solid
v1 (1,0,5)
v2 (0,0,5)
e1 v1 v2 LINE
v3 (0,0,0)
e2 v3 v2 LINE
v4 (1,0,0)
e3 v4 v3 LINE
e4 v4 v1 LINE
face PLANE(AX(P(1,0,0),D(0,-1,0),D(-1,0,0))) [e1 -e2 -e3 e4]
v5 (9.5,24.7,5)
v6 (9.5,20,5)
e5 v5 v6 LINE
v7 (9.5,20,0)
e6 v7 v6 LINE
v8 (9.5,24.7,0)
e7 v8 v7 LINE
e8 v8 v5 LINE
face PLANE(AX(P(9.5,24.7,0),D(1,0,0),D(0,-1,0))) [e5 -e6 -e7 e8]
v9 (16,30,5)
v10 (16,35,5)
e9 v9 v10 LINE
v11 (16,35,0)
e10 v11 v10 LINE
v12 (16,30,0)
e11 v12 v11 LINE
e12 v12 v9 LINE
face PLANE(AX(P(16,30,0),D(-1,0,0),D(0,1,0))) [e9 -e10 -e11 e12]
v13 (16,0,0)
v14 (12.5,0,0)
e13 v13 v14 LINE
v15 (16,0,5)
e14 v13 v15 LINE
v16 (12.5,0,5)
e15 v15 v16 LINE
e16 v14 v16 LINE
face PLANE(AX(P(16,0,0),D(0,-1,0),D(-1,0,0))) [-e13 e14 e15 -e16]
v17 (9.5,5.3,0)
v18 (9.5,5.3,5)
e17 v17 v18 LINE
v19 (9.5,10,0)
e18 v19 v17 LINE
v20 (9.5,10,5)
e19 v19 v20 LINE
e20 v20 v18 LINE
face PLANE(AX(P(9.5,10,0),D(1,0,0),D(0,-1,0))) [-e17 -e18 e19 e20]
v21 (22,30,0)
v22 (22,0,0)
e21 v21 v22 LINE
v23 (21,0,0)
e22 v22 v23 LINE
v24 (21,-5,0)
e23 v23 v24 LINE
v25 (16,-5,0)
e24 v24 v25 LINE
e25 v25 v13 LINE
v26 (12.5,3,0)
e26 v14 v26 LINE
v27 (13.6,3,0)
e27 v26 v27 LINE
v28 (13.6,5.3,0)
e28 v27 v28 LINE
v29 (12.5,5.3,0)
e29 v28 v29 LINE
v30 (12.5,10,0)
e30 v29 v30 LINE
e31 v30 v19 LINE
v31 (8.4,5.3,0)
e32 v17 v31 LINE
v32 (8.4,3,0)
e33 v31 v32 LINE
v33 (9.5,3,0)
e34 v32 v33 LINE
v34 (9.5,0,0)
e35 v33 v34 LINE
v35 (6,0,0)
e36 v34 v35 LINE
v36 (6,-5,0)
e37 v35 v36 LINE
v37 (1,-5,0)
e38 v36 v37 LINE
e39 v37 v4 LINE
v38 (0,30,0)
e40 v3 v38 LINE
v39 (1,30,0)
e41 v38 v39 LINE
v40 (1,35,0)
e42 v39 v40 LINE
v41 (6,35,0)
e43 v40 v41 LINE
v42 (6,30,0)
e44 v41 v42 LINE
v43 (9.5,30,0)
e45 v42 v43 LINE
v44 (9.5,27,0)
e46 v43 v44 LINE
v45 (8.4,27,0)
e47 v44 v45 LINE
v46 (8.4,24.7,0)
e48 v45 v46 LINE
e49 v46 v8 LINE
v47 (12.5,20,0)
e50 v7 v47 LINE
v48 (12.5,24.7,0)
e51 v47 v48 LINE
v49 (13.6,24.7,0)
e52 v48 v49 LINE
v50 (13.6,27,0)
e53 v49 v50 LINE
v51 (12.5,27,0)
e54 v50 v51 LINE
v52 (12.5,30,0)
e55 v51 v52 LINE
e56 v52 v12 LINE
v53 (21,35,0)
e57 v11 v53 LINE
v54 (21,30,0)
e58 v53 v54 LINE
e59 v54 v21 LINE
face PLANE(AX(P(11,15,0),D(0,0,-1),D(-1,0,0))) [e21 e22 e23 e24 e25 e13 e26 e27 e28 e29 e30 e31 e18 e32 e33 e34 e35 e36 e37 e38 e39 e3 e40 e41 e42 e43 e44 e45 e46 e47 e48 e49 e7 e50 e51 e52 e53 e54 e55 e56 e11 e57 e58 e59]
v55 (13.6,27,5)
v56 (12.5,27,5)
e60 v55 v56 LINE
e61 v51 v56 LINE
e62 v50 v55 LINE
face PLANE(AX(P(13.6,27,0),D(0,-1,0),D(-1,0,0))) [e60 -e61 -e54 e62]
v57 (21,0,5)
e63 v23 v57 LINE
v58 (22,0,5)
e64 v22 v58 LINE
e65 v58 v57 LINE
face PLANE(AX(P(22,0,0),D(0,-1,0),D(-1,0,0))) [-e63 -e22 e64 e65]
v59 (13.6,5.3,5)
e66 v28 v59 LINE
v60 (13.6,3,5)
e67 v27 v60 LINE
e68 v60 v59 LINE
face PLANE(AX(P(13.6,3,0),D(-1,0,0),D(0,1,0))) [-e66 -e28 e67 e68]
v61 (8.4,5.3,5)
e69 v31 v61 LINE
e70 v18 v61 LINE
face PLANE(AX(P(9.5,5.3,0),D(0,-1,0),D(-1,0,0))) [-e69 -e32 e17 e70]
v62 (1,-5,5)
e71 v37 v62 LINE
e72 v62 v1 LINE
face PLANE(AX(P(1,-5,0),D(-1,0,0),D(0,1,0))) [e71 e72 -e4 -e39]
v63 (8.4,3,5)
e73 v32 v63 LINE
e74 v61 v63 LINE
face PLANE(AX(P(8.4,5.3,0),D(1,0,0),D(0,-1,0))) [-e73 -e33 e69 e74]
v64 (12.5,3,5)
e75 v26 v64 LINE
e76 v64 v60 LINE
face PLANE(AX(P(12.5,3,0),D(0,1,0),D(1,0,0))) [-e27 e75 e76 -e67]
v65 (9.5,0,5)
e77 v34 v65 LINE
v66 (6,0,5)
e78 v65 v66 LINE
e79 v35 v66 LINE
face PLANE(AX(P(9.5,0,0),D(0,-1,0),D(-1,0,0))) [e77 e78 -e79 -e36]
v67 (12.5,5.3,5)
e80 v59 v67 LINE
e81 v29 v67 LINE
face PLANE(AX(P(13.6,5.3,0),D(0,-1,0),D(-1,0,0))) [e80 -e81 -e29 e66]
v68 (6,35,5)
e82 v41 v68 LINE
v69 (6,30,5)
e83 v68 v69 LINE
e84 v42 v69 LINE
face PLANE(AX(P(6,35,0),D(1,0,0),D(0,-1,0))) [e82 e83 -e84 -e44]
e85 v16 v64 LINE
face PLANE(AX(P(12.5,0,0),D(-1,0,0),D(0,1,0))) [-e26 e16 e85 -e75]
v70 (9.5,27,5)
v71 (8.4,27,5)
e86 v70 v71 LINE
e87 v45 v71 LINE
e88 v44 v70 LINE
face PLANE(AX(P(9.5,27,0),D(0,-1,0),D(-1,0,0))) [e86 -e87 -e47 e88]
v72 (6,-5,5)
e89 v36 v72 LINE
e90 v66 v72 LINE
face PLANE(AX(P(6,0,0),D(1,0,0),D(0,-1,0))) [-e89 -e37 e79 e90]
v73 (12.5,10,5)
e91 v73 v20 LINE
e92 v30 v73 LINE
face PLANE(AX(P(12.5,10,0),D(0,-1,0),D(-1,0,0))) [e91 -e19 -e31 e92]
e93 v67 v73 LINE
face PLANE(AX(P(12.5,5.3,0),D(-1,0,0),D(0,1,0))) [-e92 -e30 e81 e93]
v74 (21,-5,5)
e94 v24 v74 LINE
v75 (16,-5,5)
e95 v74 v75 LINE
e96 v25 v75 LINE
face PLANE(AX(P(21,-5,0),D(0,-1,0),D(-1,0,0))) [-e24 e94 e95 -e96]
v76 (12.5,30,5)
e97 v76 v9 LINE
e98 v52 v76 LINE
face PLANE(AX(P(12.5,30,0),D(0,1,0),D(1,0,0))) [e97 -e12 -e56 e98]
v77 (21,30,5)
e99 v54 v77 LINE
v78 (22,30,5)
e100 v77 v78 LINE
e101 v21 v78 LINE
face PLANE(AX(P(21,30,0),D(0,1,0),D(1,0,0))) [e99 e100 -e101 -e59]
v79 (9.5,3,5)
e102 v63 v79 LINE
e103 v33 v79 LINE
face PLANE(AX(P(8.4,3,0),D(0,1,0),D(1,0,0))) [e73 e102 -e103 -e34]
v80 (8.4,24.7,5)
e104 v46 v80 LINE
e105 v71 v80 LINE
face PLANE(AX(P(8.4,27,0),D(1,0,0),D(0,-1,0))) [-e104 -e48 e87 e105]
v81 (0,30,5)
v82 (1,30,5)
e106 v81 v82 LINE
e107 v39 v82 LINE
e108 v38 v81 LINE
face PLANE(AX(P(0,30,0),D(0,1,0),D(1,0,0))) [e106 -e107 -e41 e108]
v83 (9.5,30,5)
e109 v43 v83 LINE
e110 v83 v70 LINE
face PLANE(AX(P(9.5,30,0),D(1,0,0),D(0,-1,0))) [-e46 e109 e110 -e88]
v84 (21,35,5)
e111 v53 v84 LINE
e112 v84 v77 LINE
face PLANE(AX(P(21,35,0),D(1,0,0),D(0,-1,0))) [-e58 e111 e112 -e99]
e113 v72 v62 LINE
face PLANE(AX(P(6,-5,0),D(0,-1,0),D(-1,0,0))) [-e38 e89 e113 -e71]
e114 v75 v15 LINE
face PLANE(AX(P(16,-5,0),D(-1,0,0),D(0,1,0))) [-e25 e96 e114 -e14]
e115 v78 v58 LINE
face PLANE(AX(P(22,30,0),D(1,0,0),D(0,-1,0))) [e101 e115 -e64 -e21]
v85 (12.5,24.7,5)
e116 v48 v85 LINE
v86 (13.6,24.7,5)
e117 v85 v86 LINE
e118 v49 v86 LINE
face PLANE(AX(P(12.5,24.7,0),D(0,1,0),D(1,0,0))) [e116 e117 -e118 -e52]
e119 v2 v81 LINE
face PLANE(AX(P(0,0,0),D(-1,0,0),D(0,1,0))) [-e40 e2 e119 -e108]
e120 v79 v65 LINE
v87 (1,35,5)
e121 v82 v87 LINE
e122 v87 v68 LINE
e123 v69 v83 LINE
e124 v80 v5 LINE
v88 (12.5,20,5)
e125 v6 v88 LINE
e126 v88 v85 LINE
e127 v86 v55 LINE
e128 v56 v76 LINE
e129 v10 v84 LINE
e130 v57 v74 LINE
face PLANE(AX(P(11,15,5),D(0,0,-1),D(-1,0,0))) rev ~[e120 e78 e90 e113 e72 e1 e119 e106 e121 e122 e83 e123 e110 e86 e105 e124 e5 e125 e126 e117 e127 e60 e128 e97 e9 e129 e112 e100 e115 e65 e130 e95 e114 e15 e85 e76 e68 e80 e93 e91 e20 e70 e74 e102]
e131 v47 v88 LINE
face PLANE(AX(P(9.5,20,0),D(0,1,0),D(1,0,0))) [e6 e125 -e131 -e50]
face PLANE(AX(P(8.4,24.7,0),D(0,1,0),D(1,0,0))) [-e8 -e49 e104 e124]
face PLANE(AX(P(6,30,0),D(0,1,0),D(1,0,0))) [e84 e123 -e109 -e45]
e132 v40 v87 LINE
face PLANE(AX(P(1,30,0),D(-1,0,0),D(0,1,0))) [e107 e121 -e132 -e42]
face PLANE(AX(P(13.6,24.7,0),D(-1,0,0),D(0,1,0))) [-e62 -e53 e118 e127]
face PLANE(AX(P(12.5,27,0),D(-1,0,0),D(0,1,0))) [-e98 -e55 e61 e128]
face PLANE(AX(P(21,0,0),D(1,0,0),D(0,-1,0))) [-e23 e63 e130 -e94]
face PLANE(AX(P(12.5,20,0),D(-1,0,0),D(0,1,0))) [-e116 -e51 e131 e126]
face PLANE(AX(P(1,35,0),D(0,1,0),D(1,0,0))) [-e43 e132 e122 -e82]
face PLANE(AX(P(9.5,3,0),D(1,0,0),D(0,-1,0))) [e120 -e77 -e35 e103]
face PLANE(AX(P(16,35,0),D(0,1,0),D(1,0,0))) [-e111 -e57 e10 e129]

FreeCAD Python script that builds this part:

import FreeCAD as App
import Part
import Sketcher

doc = App.newDocument("Part")
body = doc.addObject("PartDesign::Body", "Body")

# Sketch on XY plane
sketch1 = doc.addObject("Sketcher::SketchObject", "Sketch")
body.addObject(sketch1)
sketch1.AttachmentSupport = (doc.XY_Plane, [""])
sketch1.MapMode = "FlatFace"
sketch1.addGeometry([
    Part.LineSegment(App.Vector(1, 30, 0), App.Vector(0, 30, 0)),  # 0
    Part.LineSegment(App.Vector(0, 30, 0), App.Vector(0, 0, 0)),  # 1
    Part.LineSegment(App.Vector(0, 0, 0), App.Vector(1, 0, 0)),  # 2
    Part.LineSegment(App.Vector(1, 0, 0), App.Vector(1, -5, 0)),  # 3
    Part.LineSegment(App.Vector(1, -5, 0), App.Vector(6, -5, 0)),  # 4
    Part.LineSegment(App.Vector(6, -5, 0), App.Vector(6, 0, 0)),  # 5
    Part.LineSegment(App.Vector(6, 0, 0), App.Vector(9.5, 0, 0)),  # 6
    Part.LineSegment(App.Vector(9.5, 0, 0), App.Vector(9.5, 3, 0)),  # 7
    Part.LineSegment(App.Vector(9.5, 3, 0), App.Vector(8.4, 3, 0)),  # 8
    Part.LineSegment(App.Vector(8.4, 3, 0), App.Vector(8.4, 5.3, 0)),  # 9
    Part.LineSegment(App.Vector(8.4, 5.3, 0), App.Vector(9.5, 5.3, 0)),  # 10
    Part.LineSegment(App.Vector(9.5, 5.3, 0), App.Vector(9.5, 10, 0)),  # 11
    Part.LineSegment(App.Vector(9.5, 10, 0), App.Vector(12.5, 10, 0)),  # 12
    Part.LineSegment(App.Vector(12.5, 10, 0), App.Vector(12.5, 5.3, 0)),  # 13
    Part.LineSegment(App.Vector(12.5, 5.3, 0), App.Vector(13.6, 5.3, 0)),  # 14
    Part.LineSegment(App.Vector(13.6, 5.3, 0), App.Vector(13.6, 3, 0)),  # 15
    Part.LineSegment(App.Vector(13.6, 3, 0), App.Vector(12.5, 3, 0)),  # 16
    Part.LineSegment(App.Vector(12.5, 3, 0), App.Vector(12.5, 0, 0)),  # 17
    Part.LineSegment(App.Vector(12.5, 0, 0), App.Vector(16, 0, 0)),  # 18
    Part.LineSegment(App.Vector(16, 0, 0), App.Vector(16, -5, 0)),  # 19
    Part.LineSegment(App.Vector(16, -5, 0), App.Vector(21, -5, 0)),  # 20
    Part.LineSegment(App.Vector(21, -5, 0), App.Vector(21, 0, 0)),  # 21
    Part.LineSegment(App.Vector(21, 0, 0), App.Vector(22, 0, 0)),  # 22
    Part.LineSegment(App.Vector(22, 0, 0), App.Vector(22, 30, 0)),  # 23
    Part.LineSegment(App.Vector(22, 30, 0), App.Vector(21, 30, 0)),  # 24
    Part.LineSegment(App.Vector(21, 30, 0), App.Vector(21, 35, 0)),  # 25
    Part.LineSegment(App.Vector(21, 35, 0), App.Vector(16, 35, 0)),  # 26
    Part.LineSegment(App.Vector(16, 35, 0), App.Vector(16, 30, 0)),  # 27
    Part.LineSegment(App.Vector(16, 30, 0), App.Vector(12.5, 30, 0)),  # 28
    Part.LineSegment(App.Vector(12.5, 30, 0), App.Vector(12.5, 27, 0)),  # 29
    Part.LineSegment(App.Vector(12.5, 27, 0), App.Vector(13.6, 27, 0)),  # 30
    Part.LineSegment(App.Vector(13.6, 27, 0), App.Vector(13.6, 24.7, 0)),  # 31
    Part.LineSegment(App.Vector(13.6, 24.7, 0), App.Vector(12.5, 24.7, 0)),  # 32
    Part.LineSegment(App.Vector(12.5, 24.7, 0), App.Vector(12.5, 20, 0)),  # 33
    Part.LineSegment(App.Vector(12.5, 20, 0), App.Vector(9.5, 20, 0)),  # 34
    Part.LineSegment(App.Vector(9.5, 20, 0), App.Vector(9.5, 24.7, 0)),  # 35
    Part.LineSegment(App.Vector(9.5, 24.7, 0), App.Vector(8.4, 24.7, 0)),  # 36
    Part.LineSegment(App.Vector(8.4, 24.7, 0), App.Vector(8.4, 27, 0)),  # 37
    Part.LineSegment(App.Vector(8.4, 27, 0), App.Vector(9.5, 27, 0)),  # 38
    Part.LineSegment(App.Vector(9.5, 27, 0), App.Vector(9.5, 30, 0)),  # 39
    Part.LineSegment(App.Vector(9.5, 30, 0), App.Vector(6, 30, 0)),  # 40
    Part.LineSegment(App.Vector(6, 30, 0), App.Vector(6, 35, 0)),  # 41
    Part.LineSegment(App.Vector(6, 35, 0), App.Vector(1, 35, 0)),  # 42
    Part.LineSegment(App.Vector(1, 35, 0), App.Vector(1, 30, 0)),  # 43
], False)
sketch1.addConstraint([
    Sketcher.Constraint("Coincident", 0, 2, 1, 1),
    Sketcher.Constraint("Coincident", 1, 2, 2, 1),
    Sketcher.Constraint("Coincident", 2, 2, 3, 1),
    Sketcher.Constraint("Coincident", 3, 2, 4, 1),
    Sketcher.Constraint("Coincident", 4, 2, 5, 1),
    Sketcher.Constraint("Coincident", 5, 2, 6, 1),
    Sketcher.Constraint("Coincident", 6, 2, 7, 1),
    Sketcher.Constraint("Coincident", 7, 2, 8, 1),
    Sketcher.Constraint("Coincident", 8, 2, 9, 1),
    Sketcher.Constraint("Coincident", 9, 2, 10, 1),
    Sketcher.Constraint("Coincident", 10, 2, 11, 1),
    Sketcher.Constraint("Coincident", 11, 2, 12, 1),
    Sketcher.Constraint("Coincident", 12, 2, 13, 1),
    Sketcher.Constraint("Coincident", 13, 2, 14, 1),
    Sketcher.Constraint("Coincident", 14, 2, 15, 1),
    Sketcher.Constraint("Coincident", 15, 2, 16, 1),
    Sketcher.Constraint("Coincident", 16, 2, 17, 1),
    Sketcher.Constraint("Coincident", 17, 2, 18, 1),
    Sketcher.Constraint("Coincident", 18, 2, 19, 1),
    Sketcher.Constraint("Coincident", 19, 2, 20, 1),
    Sketcher.Constraint("Coincident", 20, 2, 21, 1),
    Sketcher.Constraint("Coincident", 21, 2, 22, 1),
    Sketcher.Constraint("Coincident", 22, 2, 23, 1),
    Sketcher.Constraint("Coincident", 23, 2, 24, 1),
    Sketcher.Constraint("Coincident", 24, 2, 25, 1),
    Sketcher.Constraint("Coincident", 25, 2, 26, 1),
    Sketcher.Constraint("Coincident", 26, 2, 27, 1),
    Sketcher.Constraint("Coincident", 27, 2, 28, 1),
    Sketcher.Constraint("Coincident", 28, 2, 29, 1),
    Sketcher.Constraint("Coincident", 29, 2, 30, 1),
    Sketcher.Constraint("Coincident", 30, 2, 31, 1),
    Sketcher.Constraint("Coincident", 31, 2, 32, 1),
    Sketcher.Constraint("Coincident", 32, 2, 33, 1),
    Sketcher.Constraint("Coincident", 33, 2, 34, 1),
    Sketcher.Constraint("Coincident", 34, 2, 35, 1),
    Sketcher.Constraint("Coincident", 35, 2, 36, 1),
    Sketcher.Constraint("Coincident", 36, 2, 37, 1),
    Sketcher.Constraint("Coincident", 37, 2, 38, 1),
    Sketcher.Constraint("Coincident", 38, 2, 39, 1),
    Sketcher.Constraint("Coincident", 39, 2, 40, 1),
    Sketcher.Constraint("Coincident", 40, 2, 41, 1),
    Sketcher.Constraint("Coincident", 41, 2, 42, 1),
    Sketcher.Constraint("Coincident", 42, 2, 43, 1),
    Sketcher.Constraint("Coincident", 43, 2, 0, 1),
    Sketcher.Constraint("Horizontal", 0),
    Sketcher.Constraint("Vertical", 1),
    Sketcher.Constraint("Horizontal", 2),
    Sketcher.Constraint("Vertical", 3),
    Sketcher.Constraint("Horizontal", 4),
    Sketcher.Constraint("Vertical", 5),
    Sketcher.Constraint("Horizontal", 6),
    Sketcher.Constraint("Vertical", 7),
    Sketcher.Constraint("Horizontal", 8),
    Sketcher.Constraint("Vertical", 9),
    Sketcher.Constraint("Horizontal", 10),
    Sketcher.Constraint("Vertical", 11),
    Sketcher.Constraint("Horizontal", 12),
    Sketcher.Constraint("Vertical", 13),
    Sketcher.Constraint("Horizontal", 14),
    Sketcher.Constraint("Vertical", 15),
    Sketcher.Constraint("Horizontal", 16),
    Sketcher.Constraint("Vertical", 17),
    Sketcher.Constraint("Horizontal", 18),
    Sketcher.Constraint("Vertical", 19),
    Sketcher.Constraint("Horizontal", 20),
    Sketcher.Constraint("Vertical", 21),
    Sketcher.Constraint("Horizontal", 22),
    Sketcher.Constraint("Vertical", 23),
    Sketcher.Constraint("Horizontal", 24),
    Sketcher.Constraint("Vertical", 25),
    Sketcher.Constraint("Horizontal", 26),
    Sketcher.Constraint("Vertical", 27),
    Sketcher.Constraint("Horizontal", 28),
    Sketcher.Constraint("Vertical", 29),
    Sketcher.Constraint("Horizontal", 30),
    Sketcher.Constraint("Vertical", 31),
    Sketcher.Constraint("Horizontal", 32),
    Sketcher.Constraint("Vertical", 33),
    Sketcher.Constraint("Horizontal", 34),
    Sketcher.Constraint("Vertical", 35),
    Sketcher.Constraint("Horizontal", 36),
    Sketcher.Constraint("Vertical", 37),
    Sketcher.Constraint("Horizontal", 38),
    Sketcher.Constraint("Vertical", 39),
    Sketcher.Constraint("Horizontal", 40),
    Sketcher.Constraint("Vertical", 41),
    Sketcher.Constraint("Horizontal", 42),
    Sketcher.Constraint("Vertical", 43),
    Sketcher.Constraint("Coincident", 1, 2, -1, 1),
    Sketcher.Constraint("PointOnObject", 5, 2, -1),
    Sketcher.Constraint("PointOnObject", 17, 2, -1),
    Sketcher.Constraint("PointOnObject", 21, 2, -1),
    Sketcher.Constraint("Horizontal", 10, 2, 13, 2),
    Sketcher.Constraint("Horizontal", 8, 2, 15, 2),
    Sketcher.Constraint("Horizontal", 4, 2, 19, 2),
    Sketcher.Constraint("Horizontal", 0, 2, 23, 2),
    Sketcher.Constraint("Horizontal", 24, 2, 27, 2),
    Sketcher.Constraint("Horizontal", 32, 2, 35, 2),
    Sketcher.Constraint("Horizontal", 30, 2, 37, 2),
    Sketcher.Constraint("Horizontal", 28, 2, 39, 2),
    Sketcher.Constraint("Horizontal", 26, 2, 41, 2),
    Sketcher.Constraint("Vertical", 7, 2, 10, 2),
    Sketcher.Constraint("Vertical", 13, 2, 16, 2),
    Sketcher.Constraint("Vertical", 21, 2, 24, 2),
    Sketcher.Constraint("Vertical", 19, 2, 26, 2),
    Sketcher.Constraint("Vertical", 17, 2, 28, 2),
    Sketcher.Constraint("Vertical", 15, 2, 30, 2),
    Sketcher.Constraint("Vertical", 29, 2, 32, 2),
    Sketcher.Constraint("Vertical", 11, 2, 34, 2),
    Sketcher.Constraint("Vertical", 9, 2, 36, 2),
    Sketcher.Constraint("Vertical", 35, 2, 38, 2),
    Sketcher.Constraint("Vertical", 5, 2, 40, 2),
    Sketcher.Constraint("Vertical", 3, 2, 42, 2),
    Sketcher.Constraint("Equal", 10, 14),
    Sketcher.Constraint("Equal", 6, 18),
    Sketcher.Constraint("Equal", 4, 20),
    Sketcher.Constraint("Equal", 2, 22),
    Sketcher.Constraint("Equal", 42, 3),
    Sketcher.Constraint("Equal", 34, 7),
    Sketcher.Constraint("Equal", 21, 25),
    Sketcher.Constraint("Equal", 17, 29),
    Sketcher.Constraint("Equal", 15, 31),
    Sketcher.Constraint("Equal", 13, 33),
    Sketcher.Constraint("DistanceX", 0, 2, 0, 1, 1.0),
    Sketcher.Constraint("DistanceX", 4, 1, 4, 2, 5.0),
    Sketcher.Constraint("DistanceX", 12, 1, 12, 2, 3.0),
    Sketcher.Constraint("DistanceY", 1, 2, 1, 1, 30.0),
    Sketcher.Constraint("DistanceX", 6, 1, 6, 2, 3.5),
    Sketcher.Constraint("DistanceX", 8, 2, 8, 1, 1.1),
    Sketcher.Constraint("DistanceY", 9, 1, 9, 2, 2.3),
    Sketcher.Constraint("DistanceY", 11, 1, 11, 2, 4.7),
])
pad1 = doc.addObject("PartDesign::Pad", "Pad")
body.addObject(pad1)
pad1.Profile = sketch1
pad1.Length = 5

doc.recompute()
